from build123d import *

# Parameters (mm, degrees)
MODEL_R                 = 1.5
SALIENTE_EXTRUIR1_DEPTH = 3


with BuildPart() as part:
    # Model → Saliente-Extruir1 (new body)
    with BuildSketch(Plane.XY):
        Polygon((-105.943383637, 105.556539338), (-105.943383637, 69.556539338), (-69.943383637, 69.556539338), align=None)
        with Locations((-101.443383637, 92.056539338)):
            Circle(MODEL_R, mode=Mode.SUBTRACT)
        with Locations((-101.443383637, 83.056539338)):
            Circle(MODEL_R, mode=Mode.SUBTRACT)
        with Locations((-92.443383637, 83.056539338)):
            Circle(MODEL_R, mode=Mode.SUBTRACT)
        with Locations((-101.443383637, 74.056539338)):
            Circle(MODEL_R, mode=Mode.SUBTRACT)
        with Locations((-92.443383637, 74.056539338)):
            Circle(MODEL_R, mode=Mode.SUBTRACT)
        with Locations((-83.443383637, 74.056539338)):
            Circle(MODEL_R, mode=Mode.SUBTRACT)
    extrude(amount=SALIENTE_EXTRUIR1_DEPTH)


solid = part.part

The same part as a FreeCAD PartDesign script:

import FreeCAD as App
import Part
import Sketcher
from FreeCAD import Vector
Q = App.Units.Quantity

doc = App.newDocument("Part")
body = doc.addObject("PartDesign::Body", "Body")

sketch1 = body.newObject("Sketcher::SketchObject", "Sketch")
sketch1.AttachmentSupport = (doc.getObject("XY_Plane"), [""])
sketch1.MapMode = "FlatFace"
sketch1.addGeometry(Part.LineSegment(Vector(-105.943384, 105.556539, 0), Vector(-105.943384, 69.556539, 0)), False)
sketch1.addGeometry(Part.LineSegment(Vector(-105.943384, 69.556539, 0), Vector(-69.943384, 69.556539, 0)), False)
sketch1.addGeometry(Part.LineSegment(Vector(-69.943384, 69.556539, 0), Vector(-105.943384, 105.556539, 0)), False)
sketch1.addGeometry(Part.Circle(Vector(-101.443384, 74.056539, 0), Vector(0, 0, 1), 1.5), False)
sketch1.addGeometry(Part.Circle(Vector(-92.443384, 74.056539, 0), Vector(0, 0, 1), 1.5), False)
sketch1.addGeometry(Part.Circle(Vector(-83.443384, 74.056539, 0), Vector(0, 0, 1), 1.5), False)
sketch1.addGeometry(Part.Circle(Vector(-101.443384, 83.056539, 0), Vector(0, 0, 1), 1.5), False)
sketch1.addGeometry(Part.Circle(Vector(-101.443384, 92.056539, 0), Vector(0, 0, 1), 1.5), False)
sketch1.addGeometry(Part.Circle(Vector(-92.443384, 83.056539, 0), Vector(0, 0, 1), 1.5), False)
sketch1.addConstraint(Sketcher.Constraint("Coincident", 0, 2, 1, 1))
sketch1.addConstraint(Sketcher.Constraint("Coincident", 1, 2, 2, 1))
sketch1.addConstraint(Sketcher.Constraint("Coincident", 2, 2, 0, 1))
sketch1.addConstraint(Sketcher.Constraint("Vertical", 0))
sketch1.addConstraint(Sketcher.Constraint("Horizontal", 1))
sketch1.addConstraint(Sketcher.Constraint("Equal", 3, 4))
sketch1.addConstraint(Sketcher.Constraint("Equal", 4, 5))
sketch1.addConstraint(Sketcher.Constraint("Equal", 5, 6))
sketch1.addConstraint(Sketcher.Constraint("Equal", 6, 7))
sketch1.addConstraint(Sketcher.Constraint("Equal", 7, 8))
sketch1.addConstraint(Sketcher.Constraint("Horizontal", 3, 3, 4, 3))
sketch1.addConstraint(Sketcher.Constraint("Horizontal", 4, 3, 5, 3))
sketch1.addConstraint(Sketcher.Constraint("Horizontal", 6, 3, 8, 3))
sketch1.addConstraint(Sketcher.Constraint("Vertical", 3, 3, 6, 3))
sketch1.addConstraint(Sketcher.Constraint("Vertical", 6, 3, 7, 3))
sketch1.addConstraint(Sketcher.Constraint("Vertical", 4, 3, 8, 3))
sketch1.addConstraint(Sketcher.Constraint("Equal", 1, 0))
sketch1.addConstraint(Sketcher.Constraint("Diameter", 3, Q("3 mm")))
sketch1.addConstraint(Sketcher.Constraint("DistanceX", 1, 1, 1, 2, Q("36 mm")))
sketch1.addConstraint(Sketcher.Constraint("DistanceX", 3, 3, 4, 3, Q("9 mm")))
sketch1.addConstraint(Sketcher.Constraint("DistanceX", 4, 3, 5, 3, Q("9 mm")))
sketch1.addConstraint(Sketcher.Constraint("DistanceY", 3, 3, 6, 3, Q("9 mm")))
sketch1.addConstraint(Sketcher.Constraint("DistanceY", 6, 3, 7, 3, Q("9 mm")))
sketch1.addConstraint(Sketcher.Constraint("DistanceX", 0, 2, 3, 3, Q("4.5 mm")))
sketch1.addConstraint(Sketcher.Constraint("DistanceY", 0, 2, 3, 3, Q("4.5 mm")))
sketch1.addConstraint(Sketcher.Constraint("DistanceY", -1, 1, 3, 3, Q("74.056539 mm")))
sketch1.addConstraint(Sketcher.Constraint("DistanceX", 3, 3, -1, 1, Q("101.443384 mm")))
pad1 = body.newObject("PartDesign::Pad", "Pad")
pad1.Profile = sketch1
pad1.Length = 3

doc.recompute()
